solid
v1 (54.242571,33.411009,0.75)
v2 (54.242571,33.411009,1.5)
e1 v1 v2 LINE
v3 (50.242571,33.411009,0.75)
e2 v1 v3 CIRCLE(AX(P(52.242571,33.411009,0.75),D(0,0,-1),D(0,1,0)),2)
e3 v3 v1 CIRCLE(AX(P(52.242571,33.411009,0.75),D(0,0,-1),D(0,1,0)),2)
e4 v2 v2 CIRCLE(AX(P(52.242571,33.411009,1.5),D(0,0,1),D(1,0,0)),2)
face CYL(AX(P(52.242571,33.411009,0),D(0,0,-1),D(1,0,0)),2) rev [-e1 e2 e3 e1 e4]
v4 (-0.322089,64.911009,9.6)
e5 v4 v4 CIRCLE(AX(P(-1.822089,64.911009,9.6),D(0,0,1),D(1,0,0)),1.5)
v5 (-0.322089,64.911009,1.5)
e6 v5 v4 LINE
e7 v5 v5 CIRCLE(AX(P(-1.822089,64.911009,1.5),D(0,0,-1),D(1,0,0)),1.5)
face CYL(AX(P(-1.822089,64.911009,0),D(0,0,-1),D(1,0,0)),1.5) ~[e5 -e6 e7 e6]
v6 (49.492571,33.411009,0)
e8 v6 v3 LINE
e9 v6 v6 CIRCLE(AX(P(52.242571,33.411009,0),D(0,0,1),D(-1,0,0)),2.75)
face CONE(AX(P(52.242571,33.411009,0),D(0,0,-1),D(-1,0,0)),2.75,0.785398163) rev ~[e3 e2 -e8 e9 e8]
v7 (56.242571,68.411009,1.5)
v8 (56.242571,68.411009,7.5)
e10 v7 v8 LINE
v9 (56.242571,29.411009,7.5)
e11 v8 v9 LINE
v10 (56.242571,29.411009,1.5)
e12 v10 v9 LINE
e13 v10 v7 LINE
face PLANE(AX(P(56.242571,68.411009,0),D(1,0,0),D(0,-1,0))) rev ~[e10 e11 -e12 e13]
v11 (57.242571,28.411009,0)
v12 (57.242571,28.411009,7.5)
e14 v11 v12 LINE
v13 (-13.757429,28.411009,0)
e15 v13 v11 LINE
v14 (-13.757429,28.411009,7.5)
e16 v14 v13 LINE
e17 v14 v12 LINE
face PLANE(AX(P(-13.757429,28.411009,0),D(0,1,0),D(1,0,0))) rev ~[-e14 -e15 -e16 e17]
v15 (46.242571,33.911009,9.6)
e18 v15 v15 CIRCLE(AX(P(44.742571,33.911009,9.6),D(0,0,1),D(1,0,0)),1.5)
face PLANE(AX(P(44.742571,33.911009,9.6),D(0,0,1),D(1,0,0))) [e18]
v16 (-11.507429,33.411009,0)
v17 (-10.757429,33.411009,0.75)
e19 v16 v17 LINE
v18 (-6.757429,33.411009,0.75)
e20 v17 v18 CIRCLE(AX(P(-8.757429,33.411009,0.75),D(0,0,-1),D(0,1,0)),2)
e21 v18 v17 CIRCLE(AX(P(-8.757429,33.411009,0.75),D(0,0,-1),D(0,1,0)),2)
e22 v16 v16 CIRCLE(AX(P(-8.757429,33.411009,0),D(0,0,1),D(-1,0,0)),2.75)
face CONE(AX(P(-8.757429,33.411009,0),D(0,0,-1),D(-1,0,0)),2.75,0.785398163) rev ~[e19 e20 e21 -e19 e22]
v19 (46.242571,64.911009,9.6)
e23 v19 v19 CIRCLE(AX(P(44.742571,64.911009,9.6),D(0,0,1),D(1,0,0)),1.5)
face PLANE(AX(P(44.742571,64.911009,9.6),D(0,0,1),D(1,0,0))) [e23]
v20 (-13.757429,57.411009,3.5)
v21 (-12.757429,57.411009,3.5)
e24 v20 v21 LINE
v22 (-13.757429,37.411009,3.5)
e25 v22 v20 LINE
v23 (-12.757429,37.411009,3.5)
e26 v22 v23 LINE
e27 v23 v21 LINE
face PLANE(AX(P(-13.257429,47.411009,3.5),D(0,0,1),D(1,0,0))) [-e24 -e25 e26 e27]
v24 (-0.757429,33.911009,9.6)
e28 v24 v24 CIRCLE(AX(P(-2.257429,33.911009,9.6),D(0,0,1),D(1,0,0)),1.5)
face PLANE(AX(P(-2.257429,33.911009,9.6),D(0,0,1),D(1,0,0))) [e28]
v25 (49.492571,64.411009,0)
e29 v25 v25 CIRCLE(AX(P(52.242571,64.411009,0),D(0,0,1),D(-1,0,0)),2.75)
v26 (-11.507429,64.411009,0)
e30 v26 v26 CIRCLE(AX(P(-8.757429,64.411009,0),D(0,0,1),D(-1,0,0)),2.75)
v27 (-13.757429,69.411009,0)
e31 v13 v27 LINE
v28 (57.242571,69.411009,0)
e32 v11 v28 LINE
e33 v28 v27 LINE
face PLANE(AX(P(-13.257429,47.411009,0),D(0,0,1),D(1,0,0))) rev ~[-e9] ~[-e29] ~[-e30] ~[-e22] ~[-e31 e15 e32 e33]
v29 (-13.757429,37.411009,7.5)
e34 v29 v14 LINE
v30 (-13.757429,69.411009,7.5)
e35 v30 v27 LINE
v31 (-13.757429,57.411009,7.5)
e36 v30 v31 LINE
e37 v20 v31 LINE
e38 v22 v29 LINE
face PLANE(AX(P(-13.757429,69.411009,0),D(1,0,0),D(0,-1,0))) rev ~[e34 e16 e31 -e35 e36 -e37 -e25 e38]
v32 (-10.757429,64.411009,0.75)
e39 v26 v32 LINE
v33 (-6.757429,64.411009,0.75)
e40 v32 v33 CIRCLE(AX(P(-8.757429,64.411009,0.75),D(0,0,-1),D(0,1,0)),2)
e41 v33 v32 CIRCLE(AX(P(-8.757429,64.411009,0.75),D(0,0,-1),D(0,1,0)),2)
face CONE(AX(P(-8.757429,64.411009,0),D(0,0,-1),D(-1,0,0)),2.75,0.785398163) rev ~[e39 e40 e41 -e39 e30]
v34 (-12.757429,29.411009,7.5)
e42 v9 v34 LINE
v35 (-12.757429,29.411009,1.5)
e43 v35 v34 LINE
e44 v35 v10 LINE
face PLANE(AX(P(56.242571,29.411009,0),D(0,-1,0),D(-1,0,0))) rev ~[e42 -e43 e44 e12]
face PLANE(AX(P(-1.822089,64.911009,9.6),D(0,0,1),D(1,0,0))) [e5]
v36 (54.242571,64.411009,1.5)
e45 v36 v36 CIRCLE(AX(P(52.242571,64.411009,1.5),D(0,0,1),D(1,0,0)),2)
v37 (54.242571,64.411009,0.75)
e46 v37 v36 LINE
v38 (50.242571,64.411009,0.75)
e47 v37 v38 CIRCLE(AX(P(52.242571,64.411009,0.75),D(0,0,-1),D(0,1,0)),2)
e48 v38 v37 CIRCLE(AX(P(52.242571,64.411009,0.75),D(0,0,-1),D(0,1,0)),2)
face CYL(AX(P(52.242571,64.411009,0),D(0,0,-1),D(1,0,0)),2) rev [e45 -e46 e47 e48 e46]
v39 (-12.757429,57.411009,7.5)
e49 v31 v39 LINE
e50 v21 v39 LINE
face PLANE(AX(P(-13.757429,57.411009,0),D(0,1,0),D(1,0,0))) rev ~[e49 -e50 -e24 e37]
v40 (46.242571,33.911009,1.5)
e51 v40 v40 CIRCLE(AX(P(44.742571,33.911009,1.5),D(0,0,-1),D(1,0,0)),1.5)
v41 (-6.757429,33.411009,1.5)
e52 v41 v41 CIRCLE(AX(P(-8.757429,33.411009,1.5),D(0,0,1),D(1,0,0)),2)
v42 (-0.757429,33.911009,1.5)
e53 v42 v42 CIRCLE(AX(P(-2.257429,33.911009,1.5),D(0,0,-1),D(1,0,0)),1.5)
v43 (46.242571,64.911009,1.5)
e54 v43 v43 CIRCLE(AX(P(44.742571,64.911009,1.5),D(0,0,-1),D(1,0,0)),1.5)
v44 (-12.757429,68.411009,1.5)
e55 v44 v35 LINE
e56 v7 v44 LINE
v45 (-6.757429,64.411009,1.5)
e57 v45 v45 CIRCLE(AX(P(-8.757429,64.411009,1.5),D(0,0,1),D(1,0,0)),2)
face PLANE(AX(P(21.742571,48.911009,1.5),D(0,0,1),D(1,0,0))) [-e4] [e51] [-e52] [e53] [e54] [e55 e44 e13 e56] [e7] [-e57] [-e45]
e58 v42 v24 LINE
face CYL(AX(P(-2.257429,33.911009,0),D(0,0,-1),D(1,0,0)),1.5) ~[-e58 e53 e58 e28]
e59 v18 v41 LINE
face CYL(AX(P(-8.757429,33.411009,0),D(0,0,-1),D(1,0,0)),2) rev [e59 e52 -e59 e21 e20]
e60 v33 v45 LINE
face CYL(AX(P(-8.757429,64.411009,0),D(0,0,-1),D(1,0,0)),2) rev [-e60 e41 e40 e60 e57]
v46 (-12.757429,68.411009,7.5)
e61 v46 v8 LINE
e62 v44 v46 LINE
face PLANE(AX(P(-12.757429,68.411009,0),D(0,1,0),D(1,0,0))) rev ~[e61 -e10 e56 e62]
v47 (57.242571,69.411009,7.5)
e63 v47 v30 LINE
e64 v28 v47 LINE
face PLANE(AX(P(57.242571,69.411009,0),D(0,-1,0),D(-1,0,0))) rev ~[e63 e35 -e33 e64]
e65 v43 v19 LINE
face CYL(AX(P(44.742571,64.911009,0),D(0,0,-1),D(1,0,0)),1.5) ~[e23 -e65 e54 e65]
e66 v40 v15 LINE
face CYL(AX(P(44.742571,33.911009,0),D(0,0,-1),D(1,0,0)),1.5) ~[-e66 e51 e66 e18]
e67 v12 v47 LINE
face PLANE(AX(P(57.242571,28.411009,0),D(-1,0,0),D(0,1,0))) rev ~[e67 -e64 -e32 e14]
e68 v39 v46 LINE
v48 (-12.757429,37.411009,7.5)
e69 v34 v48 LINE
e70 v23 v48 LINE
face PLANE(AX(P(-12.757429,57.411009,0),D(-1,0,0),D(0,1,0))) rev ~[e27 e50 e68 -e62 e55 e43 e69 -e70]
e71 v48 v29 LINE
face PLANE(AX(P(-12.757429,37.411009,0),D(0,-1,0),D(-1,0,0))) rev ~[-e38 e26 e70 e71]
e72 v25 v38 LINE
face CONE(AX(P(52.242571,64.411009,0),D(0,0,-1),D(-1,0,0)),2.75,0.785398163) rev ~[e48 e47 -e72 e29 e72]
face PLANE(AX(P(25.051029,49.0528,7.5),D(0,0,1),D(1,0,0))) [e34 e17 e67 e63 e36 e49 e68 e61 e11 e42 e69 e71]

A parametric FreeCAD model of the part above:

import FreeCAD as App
import Part
import Sketcher

V = App.Vector


def add_polygon(sketch, points):
    """Adds a closed chain of lines whose ends are joined by coincident constraints."""
    first, n = sketch.GeometryCount, len(points)
    for a, b in zip(points, points[1:] + points[:1]):
        sketch.addGeometry(Part.LineSegment(App.Vector(*a, 0), App.Vector(*b, 0)), False)
    for i in range(n):
        sketch.addConstraint(Sketcher.Constraint("Coincident", first + i, 2, first + (i + 1) % n, 1))

doc = App.newDocument("Part")
body = doc.addObject("PartDesign::Body", "Body")

# Sketch on XY plane
sketch1 = body.newObject("Sketcher::SketchObject", "Sketch")
sketch1.AttachmentSupport = (doc.getObject("XY_Plane"), [""])
sketch1.MapMode = "FlatFace"
add_polygon(sketch1, [(-13.757429, 28.411009), (57.242571, 28.411009), (57.242571, 69.411009), (-13.757429, 69.411009)])  # lines 0-3
sketch1.addGeometry(Part.Circle(V(-8.757429, 33.411009, 0), V(0, 0, 1), 2), False)  # 4
sketch1.addGeometry(Part.Circle(V(52.242571, 33.411009, 0), V(0, 0, 1), 2), False)  # 5
sketch1.addGeometry(Part.Circle(V(-8.757429, 64.411009, 0), V(0, 0, 1), 2), False)  # 6
sketch1.addGeometry(Part.Circle(V(52.242571, 64.411009, 0), V(0, 0, 1), 2), False)  # 7
sketch1.addConstraint(Sketcher.Constraint("Horizontal", 0))
sketch1.addConstraint(Sketcher.Constraint("Vertical", 1))
sketch1.addConstraint(Sketcher.Constraint("Horizontal", 2))
sketch1.addConstraint(Sketcher.Constraint("Vertical", 3))
sketch1.addConstraint(Sketcher.Constraint("Equal", 4, 5))
sketch1.addConstraint(Sketcher.Constraint("Equal", 5, 6))
sketch1.addConstraint(Sketcher.Constraint("Equal", 6, 7))
sketch1.addConstraint(Sketcher.Constraint("Horizontal", 4, 3, 5, 3))
sketch1.addConstraint(Sketcher.Constraint("Horizontal", 6, 3, 7, 3))
sketch1.addConstraint(Sketcher.Constraint("Vertical", 4, 3, 6, 3))
sketch1.addConstraint(Sketcher.Constraint("Vertical", 5, 3, 7, 3))
sketch1.addConstraint(Sketcher.Constraint("Diameter", 4, 4.0))
sketch1.addConstraint(Sketcher.Constraint("DistanceX", 0, 1, 0, 2, 71.0))
sketch1.addConstraint(Sketcher.Constraint("DistanceY", 1, 1, 1, 2, 41.0))
sketch1.addConstraint(Sketcher.Constraint("DistanceX", 4, 3, 5, 3, 61.0))
sketch1.addConstraint(Sketcher.Constraint("DistanceY", 4, 3, 6, 3, 31.0))
sketch1.addConstraint(Sketcher.Constraint("DistanceX", 5, 3, 0, 2, 5.0))
sketch1.addConstraint(Sketcher.Constraint("DistanceY", 0, 2, 5, 3, 5.0))
sketch1.addConstraint(Sketcher.Constraint("DistanceX", 4, 3, -1, 1, 8.757429))
sketch1.addConstraint(Sketcher.Constraint("DistanceY", -1, 1, 4, 3, 33.411009))
pad1 = body.newObject("PartDesign::Pad", "Pad")
pad1.Profile = sketch1
pad1.Length = 1.5

# Sketch on XY plane
sketch2 = body.newObject("Sketcher::SketchObject", "Sketch001")
sketch2.AttachmentSupport = (doc.getObject("XY_Plane"), [""])
sketch2.MapMode = "FlatFace"
add_polygon(sketch2, [(-12.757429, 57.411009), (-12.757429, 68.411009), (56.242571, 68.411009), (56.242571, 29.411009), (-12.757429, 29.411009), (-12.757429, 37.411009), (-13.757429, 37.411009), (-13.757429, 28.411009), (57.242571, 28.411009), (57.242571, 69.411009), (-13.757429, 69.411009), (-13.757429, 57.411009)])  # lines 0-11
sketch2.addConstraint(Sketcher.Constraint("Vertical", 0))
sketch2.addConstraint(Sketcher.Constraint("Horizontal", 1))
sketch2.addConstraint(Sketcher.Constraint("Vertical", 2))
sketch2.addConstraint(Sketcher.Constraint("Horizontal", 3))
sketch2.addConstraint(Sketcher.Constraint("Vertical", 4))
sketch2.addConstraint(Sketcher.Constraint("Horizontal", 5))
sketch2.addConstraint(Sketcher.Constraint("Vertical", 6))
sketch2.addConstraint(Sketcher.Constraint("Horizontal", 7))
sketch2.addConstraint(Sketcher.Constraint("Vertical", 8))
sketch2.addConstraint(Sketcher.Constraint("Horizontal", 9))
sketch2.addConstraint(Sketcher.Constraint("Vertical", 10))
sketch2.addConstraint(Sketcher.Constraint("Horizontal", 11))
sketch2.addConstraint(Sketcher.Constraint("Vertical", 0, 2, 3, 2))
sketch2.addConstraint(Sketcher.Constraint("Vertical", 6, 2, 9, 2))
sketch2.addConstraint(Sketcher.Constraint("DistanceX", 1, 1, 1, 2, 69.0))
sketch2.addConstraint(Sketcher.Constraint("DistanceX", 5, 2, 5, 1, 1.0))
sketch2.addConstraint(Sketcher.Constraint("DistanceX", 7, 1, 7, 2, 71.0))
sketch2.addConstraint(Sketcher.Constraint("DistanceY", 0, 1, 0, 2, 11.0))
sketch2.addConstraint(Sketcher.Constraint("DistanceY", 2, 2, 2, 1, 39.0))
sketch2.addConstraint(Sketcher.Constraint("DistanceY", 4, 1, 4, 2, 8.0))
sketch2.addConstraint(Sketcher.Constraint("DistanceY", 6, 2, 6, 1, 9.0))
sketch2.addConstraint(Sketcher.Constraint("DistanceY", 8, 1, 8, 2, 41.0))
sketch2.addConstraint(Sketcher.Constraint("DistanceX", 0, 2, -1, 1, 12.757429))
sketch2.addConstraint(Sketcher.Constraint("DistanceY", -1, 1, 0, 2, 68.411009))
pad2 = body.newObject("PartDesign::Pad", "Pad001")
pad2.Profile = sketch2
pad2.Length = 7.5

# Sketch on XY plane
sketch3 = body.newObject("Sketcher::SketchObject", "Sketch002")
sketch3.AttachmentSupport = (doc.getObject("XY_Plane"), [""])
sketch3.MapMode = "FlatFace"
sketch3.addGeometry(Part.Circle(V(-1.822089, 64.911009, 0), V(0, 0, 1), 1.5), False)
sketch3.addGeometry(Part.Circle(V(-2.257429, 33.911009, 0), V(0, 0, 1), 1.5), False)
sketch3.addGeometry(Part.Circle(V(44.742571, 33.911009, 0), V(0, 0, 1), 1.5), False)
sketch3.addGeometry(Part.Circle(V(44.742571, 64.911009, 0), V(0, 0, 1), 1.5), False)
sketch3.addConstraint(Sketcher.Constraint("Equal", 0, 1))
sketch3.addConstraint(Sketcher.Constraint("Equal", 1, 2))
sketch3.addConstraint(Sketcher.Constraint("Equal", 2, 3))
sketch3.addConstraint(Sketcher.Constraint("Horizontal", 1, 3, 2, 3))
sketch3.addConstraint(Sketcher.Constraint("Horizontal", 0, 3, 3, 3))
sketch3.addConstraint(Sketcher.Constraint("Vertical", 2, 3, 3, 3))
sketch3.addConstraint(Sketcher.Constraint("Diameter", 0, 3.0))
sketch3.addConstraint(Sketcher.Constraint("DistanceY", 1, 3, 0, 3, 31.0))
sketch3.addConstraint(Sketcher.Constraint("DistanceX", 1, 3, 2, 3, 47.0))
sketch3.addConstraint(Sketcher.Constraint("DistanceX", 0, 3, -1, 1, 1.822089))
sketch3.addConstraint(Sketcher.Constraint("DistanceY", -1, 1, 0, 3, 64.911009))
sketch3.addConstraint(Sketcher.Constraint("DistanceX", 1, 3, -1, 1, 2.257429))
pad3 = body.newObject("PartDesign::Pad", "Pad002")
pad3.Profile = sketch3
pad3.Length = 9.6

# Sketch on XY plane
sketch4 = body.newObject("Sketcher::SketchObject", "Sketch003")
sketch4.AttachmentSupport = (doc.getObject("XY_Plane"), [""])
sketch4.MapMode = "FlatFace"
add_polygon(sketch4, [(-13.757429, 57.411009), (-13.757429, 37.411009), (-12.757429, 37.411009), (-12.757429, 57.411009)])  # lines 0-3
sketch4.addConstraint(Sketcher.Constraint("Vertical", 0))
sketch4.addConstraint(Sketcher.Constraint("Horizontal", 1))
sketch4.addConstraint(Sketcher.Constraint("Vertical", 2))
sketch4.addConstraint(Sketcher.Constraint("Horizontal", 3))
sketch4.addConstraint(Sketcher.Constraint("DistanceX", 1, 1, 1, 2, 1.0))
sketch4.addConstraint(Sketcher.Constraint("DistanceY", 0, 2, 0, 1, 20.0))
sketch4.addConstraint(Sketcher.Constraint("DistanceX", 0, 2, -1, 1, 13.757429))
sketch4.addConstraint(Sketcher.Constraint("DistanceY", -1, 1, 0, 2, 37.411009))
pad4 = body.newObject("PartDesign::Pad", "Pad003")
pad4.Profile = sketch4
pad4.Length = 3.5

# Sketch on XY plane
sketch5 = body.newObject("Sketcher::SketchObject", "Sketch004")
sketch5.AttachmentSupport = (doc.getObject("XY_Plane"), [""])
sketch5.MapMode = "FlatFace"
sketch5.addGeometry(Part.Circle(V(52.242571, 64.411009, 0), V(0, 0, 1), 1.5), False)
sketch5.addGeometry(Part.Circle(V(52.242571, 33.411009, 0), V(0, 0, 1), 1.5), False)
sketch5.addGeometry(Part.Circle(V(-8.757429, 33.411009, 0), V(0, 0, 1), 1.5), False)
sketch5.addGeometry(Part.Circle(V(-8.757429, 64.411009, 0), V(0, 0, 1), 1.5), False)
sketch5.addConstraint(Sketcher.Constraint("Equal", 0, 1))
sketch5.addConstraint(Sketcher.Constraint("Equal", 1, 2))
sketch5.addConstraint(Sketcher.Constraint("Equal", 2, 3))
sketch5.addConstraint(Sketcher.Constraint("Horizontal", 1, 3, 2, 3))
sketch5.addConstraint(Sketcher.Constraint("Horizontal", 0, 3, 3, 3))
sketch5.addConstraint(Sketcher.Constraint("Vertical", 0, 3, 1, 3))
sketch5.addConstraint(Sketcher.Constraint("Vertical", 2, 3, 3, 3))
sketch5.addConstraint(Sketcher.Constraint("Diameter", 0, 3.0))
sketch5.addConstraint(Sketcher.Constraint("DistanceY", 1, 3, 0, 3, 31.0))
sketch5.addConstraint(Sketcher.Constraint("DistanceX", 2, 3, 1, 3, 61.0))
sketch5.addConstraint(Sketcher.Constraint("DistanceX", -1, 1, 0, 3, 52.242571))
sketch5.addConstraint(Sketcher.Constraint("DistanceY", -1, 1, 0, 3, 64.411009))
doc.recompute()
hole = body.newObject("PartDesign::Hole", "Hole")
hole.Profile = sketch5
hole.ThreadType = "None"
hole.Diameter = 3
hole.DepthType = "ThroughAll"
hole.HoleCutType = "Countersink"
hole.HoleCutDiameter = 5.5
hole.HoleCutCountersinkAngle = 90
hole.Reversed = True

doc.recompute()
